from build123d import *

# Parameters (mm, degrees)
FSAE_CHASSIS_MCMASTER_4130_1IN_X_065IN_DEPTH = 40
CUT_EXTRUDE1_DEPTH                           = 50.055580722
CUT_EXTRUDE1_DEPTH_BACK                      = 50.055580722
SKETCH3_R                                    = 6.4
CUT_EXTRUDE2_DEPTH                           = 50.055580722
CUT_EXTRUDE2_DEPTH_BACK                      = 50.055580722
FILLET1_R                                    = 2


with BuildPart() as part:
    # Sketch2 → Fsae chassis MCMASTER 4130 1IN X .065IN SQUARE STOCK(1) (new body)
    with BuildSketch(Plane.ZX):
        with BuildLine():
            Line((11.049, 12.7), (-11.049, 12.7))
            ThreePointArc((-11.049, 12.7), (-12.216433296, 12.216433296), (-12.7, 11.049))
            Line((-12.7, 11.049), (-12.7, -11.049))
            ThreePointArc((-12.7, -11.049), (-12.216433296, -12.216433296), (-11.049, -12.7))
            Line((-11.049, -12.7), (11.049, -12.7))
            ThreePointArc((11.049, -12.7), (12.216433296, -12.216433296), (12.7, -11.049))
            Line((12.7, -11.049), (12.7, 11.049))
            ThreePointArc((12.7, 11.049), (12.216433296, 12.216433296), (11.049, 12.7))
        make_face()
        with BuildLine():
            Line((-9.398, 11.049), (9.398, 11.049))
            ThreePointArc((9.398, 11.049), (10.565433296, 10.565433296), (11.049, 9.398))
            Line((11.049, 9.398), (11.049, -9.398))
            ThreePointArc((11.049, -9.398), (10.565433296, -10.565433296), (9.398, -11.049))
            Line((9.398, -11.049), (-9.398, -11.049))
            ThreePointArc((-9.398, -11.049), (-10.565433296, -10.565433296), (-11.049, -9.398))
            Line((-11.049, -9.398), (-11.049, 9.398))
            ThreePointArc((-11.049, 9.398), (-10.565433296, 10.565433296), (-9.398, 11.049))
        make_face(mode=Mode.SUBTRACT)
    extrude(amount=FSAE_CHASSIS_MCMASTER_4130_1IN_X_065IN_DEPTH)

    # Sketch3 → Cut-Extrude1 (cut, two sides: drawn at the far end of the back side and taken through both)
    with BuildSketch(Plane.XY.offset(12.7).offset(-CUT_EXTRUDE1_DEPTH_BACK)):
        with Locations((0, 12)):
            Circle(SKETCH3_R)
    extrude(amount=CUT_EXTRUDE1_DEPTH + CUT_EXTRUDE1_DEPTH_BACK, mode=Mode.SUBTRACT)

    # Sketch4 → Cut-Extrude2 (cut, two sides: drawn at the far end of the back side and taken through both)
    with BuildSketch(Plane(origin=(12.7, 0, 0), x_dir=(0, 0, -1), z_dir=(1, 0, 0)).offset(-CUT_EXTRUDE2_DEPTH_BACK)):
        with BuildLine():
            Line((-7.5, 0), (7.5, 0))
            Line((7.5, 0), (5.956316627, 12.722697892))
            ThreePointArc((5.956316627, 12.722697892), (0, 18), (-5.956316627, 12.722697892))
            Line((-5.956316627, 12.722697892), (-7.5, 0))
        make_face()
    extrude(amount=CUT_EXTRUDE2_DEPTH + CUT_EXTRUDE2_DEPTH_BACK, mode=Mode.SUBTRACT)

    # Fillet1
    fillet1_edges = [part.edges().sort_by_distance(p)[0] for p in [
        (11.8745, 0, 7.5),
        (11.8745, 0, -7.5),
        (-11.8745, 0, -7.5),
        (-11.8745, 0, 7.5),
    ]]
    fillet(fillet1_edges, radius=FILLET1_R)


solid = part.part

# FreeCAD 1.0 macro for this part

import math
import FreeCAD as App
import Part
import Sketcher
from FreeCAD import Vector


def edges_at(feature, points):
    """Names of the edges that pass closest to the given points."""
    edges = feature.Shape.Edges
    near = lambda p: min(range(len(edges)), key=lambda i: edges[i].distToShape(Part.Vertex(*p))[0])
    return sorted({f"Edge{near(p) + 1}" for p in points})

doc = App.newDocument("Part")
body = doc.addObject("PartDesign::Body", "Body")

# Sketch on XZ plane
sketch1 = body.newObject("Sketcher::SketchObject", "Sketch")
sketch1.AttachmentSupport = (doc.getObject("XZ_Plane"), [""])
sketch1.MapMode = "FlatFace"
sketch1.addGeometry([
    Part.LineSegment(Vector(12.7, 11, 0), Vector(12.7, -11, 0)),  # 0
    Part.ArcOfCircle(Part.Circle(Vector(11, -11, 0), Vector(0, 0, 1), 1.7), math.radians(-90), math.radians(0)),  # 1
    Part.LineSegment(Vector(11, -12.7, 0), Vector(-11, -12.7, 0)),  # 2
    Part.ArcOfCircle(Part.Circle(Vector(-11, -11, 0), Vector(0, 0, 1), 1.7), math.radians(180), math.radians(270)),  # 3
    Part.LineSegment(Vector(-12.7, -11, 0), Vector(-12.7, 11, 0)),  # 4
    Part.ArcOfCircle(Part.Circle(Vector(-11, 11, 0), Vector(0, 0, 1), 1.7), math.radians(90), math.radians(180)),  # 5
    Part.LineSegment(Vector(-11, 12.7, 0), Vector(11, 12.7, 0)),  # 6
    Part.ArcOfCircle(Part.Circle(Vector(11, 11, 0), Vector(0, 0, 1), 1.7), math.radians(0), math.radians(90)),  # 7
    Part.ArcOfCircle(Part.Circle(Vector(9.4, -9.4, 0), Vector(0, 0, 1), 1.7), math.radians(-90), math.radians(0)),  # 8
    Part.LineSegment(Vector(11, -9.4, 0), Vector(11, 9.4, 0)),  # 9
    Part.ArcOfCircle(Part.Circle(Vector(9.4, 9.4, 0), Vector(0, 0, 1), 1.7), math.radians(0), math.radians(90)),  # 10
    Part.LineSegment(Vector(9.4, 11, 0), Vector(-9.4, 11, 0)),  # 11
    Part.ArcOfCircle(Part.Circle(Vector(-9.4, 9.4, 0), Vector(0, 0, 1), 1.7), math.radians(90), math.radians(180)),  # 12
    Part.LineSegment(Vector(-11, 9.4, 0), Vector(-11, -9.4, 0)),  # 13
    Part.ArcOfCircle(Part.Circle(Vector(-9.4, -9.4, 0), Vector(0, 0, 1), 1.7), math.radians(180), math.radians(270)),  # 14
    Part.LineSegment(Vector(-9.4, -11, 0), Vector(9.4, -11, 0)),  # 15
], False)
sketch1.addConstraint([
    Sketcher.Constraint("Tangent", 0, 2, 1, 2),
    Sketcher.Constraint("Tangent", 1, 1, 2, 1),
    Sketcher.Constraint("Tangent", 2, 2, 3, 2),
    Sketcher.Constraint("Tangent", 3, 1, 4, 1),
    Sketcher.Constraint("Tangent", 4, 2, 5, 2),
    Sketcher.Constraint("Tangent", 5, 1, 6, 1),
    Sketcher.Constraint("Tangent", 6, 2, 7, 2),
    Sketcher.Constraint("Tangent", 7, 1, 0, 1),
    Sketcher.Constraint("Tangent", 8, 2, 9, 1),
    Sketcher.Constraint("Tangent", 9, 2, 10, 1),
    Sketcher.Constraint("Tangent", 10, 2, 11, 1),
    Sketcher.Constraint("Tangent", 11, 2, 12, 1),
    Sketcher.Constraint("Tangent", 12, 2, 13, 1),
    Sketcher.Constraint("Tangent", 13, 2, 14, 1),
    Sketcher.Constraint("Tangent", 14, 2, 15, 1),
    Sketcher.Constraint("Tangent", 15, 2, 8, 1),
    Sketcher.Constraint("Vertical", 0),
    Sketcher.Constraint("Horizontal", 2),
    Sketcher.Constraint("Vertical", 4),
    Sketcher.Constraint("Horizontal", 6),
    Sketcher.Constraint("Vertical", 9),
    Sketcher.Constraint("Horizontal", 11),
    Sketcher.Constraint("Vertical", 13),
    Sketcher.Constraint("Horizontal", 15),
    Sketcher.Constraint("Equal", 1, 3),
    Sketcher.Constraint("Equal", 3, 5),
    Sketcher.Constraint("Equal", 5, 7),
    Sketcher.Constraint("Equal", 7, 8),
    Sketcher.Constraint("Equal", 8, 10),
    Sketcher.Constraint("Equal", 10, 12),
    Sketcher.Constraint("Equal", 12, 14),
    Sketcher.Constraint("Symmetric", 1, 3, 5, 3, -1, 1),
    Sketcher.Constraint("Symmetric", 8, 3, 12, 3, -1, 1),
    Sketcher.Constraint("Horizontal", 7, 1, 10, 2),
    Sketcher.Constraint("Vertical", 6, 2, 8, 2),
    Sketcher.Constraint("Equal", 6, 0),
    Sketcher.Constraint("Radius", 1, 1.651),
    Sketcher.Constraint("DistanceX", -1, 1, 0, 2, 12.7),
])
pad1 = body.newObject("PartDesign::Pad", "Pad")
pad1.Profile = sketch1
pad1.Length = 40
pad1.Reversed = True

# Sketch on XY plane
sketch2 = body.newObject("Sketcher::SketchObject", "Sketch001")
sketch2.AttachmentSupport = (doc.getObject("XY_Plane"), [""])
sketch2.MapMode = "FlatFace"
sketch2.AttachmentOffset = App.Placement(Vector(0, 0, 12.7), App.Rotation())
sketch2.addGeometry(Part.Circle(Vector(0, 12, 0), Vector(0, 0, 1), 6), False)
sketch2.addConstraint([
    Sketcher.Constraint("PointOnObject", 0, 3, -2),
    Sketcher.Constraint("Diameter", 0, 12.8),
    Sketcher.Constraint("DistanceY", -1, 1, 0, 3, 12.0),
])
pocket1 = body.newObject("PartDesign::Pocket", "Pocket")
pocket1.Profile = sketch2
pocket1.Type = "ThroughAll"
pocket1.Midplane = True

# Sketch on YZ plane
sketch3 = body.newObject("Sketcher::SketchObject", "Sketch002")
sketch3.AttachmentSupport = (doc.getObject("YZ_Plane"), [""])
sketch3.MapMode = "FlatFace"
sketch3.AttachmentOffset = App.Placement(Vector(0, 0, 12.7), App.Rotation())
sketch3.addGeometry([
    Part.LineSegment(Vector(0, 8, 0), Vector(0, -8, 0)),
    Part.LineSegment(Vector(0, -8, 0), Vector(13, -6, 0)),
    Part.ArcOfCircle(Part.Circle(Vector(12, 0, 0), Vector(0, 0, 1), 6), math.radians(-83), math.radians(83)),
    Part.LineSegment(Vector(13, 6, 0), Vector(0, 8, 0)),
], False)
sketch3.addConstraint([
    Sketcher.Constraint("Coincident", 0, 2, 1, 1),
    Sketcher.Constraint("Tangent", 1, 2, 2, 1),
    Sketcher.Constraint("Tangent", 2, 2, 3, 1),
    Sketcher.Constraint("Coincident", 3, 2, 0, 1),
    Sketcher.Constraint("Vertical", 0),
    Sketcher.Constraint("Symmetric", 0, 2, 3, 2, -1, 1),
    Sketcher.Constraint("PointOnObject", 2, 3, -1),
    Sketcher.Constraint("Radius", 2, 6.0),
    Sketcher.Constraint("DistanceY", 0, 2, 0, 1, 15.0),
    Sketcher.Constraint("DistanceX", -1, 1, 2, 3, 12.0),
])
pocket2 = body.newObject("PartDesign::Pocket", "Pocket001")
pocket2.Profile = sketch3
pocket2.Type = "ThroughAll"
pocket2.Midplane = True
doc.recompute()

fillet = body.newObject("PartDesign::Fillet", "Fillet")
fillet.Base = (pocket2, edges_at(pocket2, [
    (11.874, 0, 7.5),
    (11.874, 0, -7.5),
    (-11.874, 0, -7.5),
    (-11.874, 0, 7.5),
]))
fillet.Radius = 2

doc.recompute()
